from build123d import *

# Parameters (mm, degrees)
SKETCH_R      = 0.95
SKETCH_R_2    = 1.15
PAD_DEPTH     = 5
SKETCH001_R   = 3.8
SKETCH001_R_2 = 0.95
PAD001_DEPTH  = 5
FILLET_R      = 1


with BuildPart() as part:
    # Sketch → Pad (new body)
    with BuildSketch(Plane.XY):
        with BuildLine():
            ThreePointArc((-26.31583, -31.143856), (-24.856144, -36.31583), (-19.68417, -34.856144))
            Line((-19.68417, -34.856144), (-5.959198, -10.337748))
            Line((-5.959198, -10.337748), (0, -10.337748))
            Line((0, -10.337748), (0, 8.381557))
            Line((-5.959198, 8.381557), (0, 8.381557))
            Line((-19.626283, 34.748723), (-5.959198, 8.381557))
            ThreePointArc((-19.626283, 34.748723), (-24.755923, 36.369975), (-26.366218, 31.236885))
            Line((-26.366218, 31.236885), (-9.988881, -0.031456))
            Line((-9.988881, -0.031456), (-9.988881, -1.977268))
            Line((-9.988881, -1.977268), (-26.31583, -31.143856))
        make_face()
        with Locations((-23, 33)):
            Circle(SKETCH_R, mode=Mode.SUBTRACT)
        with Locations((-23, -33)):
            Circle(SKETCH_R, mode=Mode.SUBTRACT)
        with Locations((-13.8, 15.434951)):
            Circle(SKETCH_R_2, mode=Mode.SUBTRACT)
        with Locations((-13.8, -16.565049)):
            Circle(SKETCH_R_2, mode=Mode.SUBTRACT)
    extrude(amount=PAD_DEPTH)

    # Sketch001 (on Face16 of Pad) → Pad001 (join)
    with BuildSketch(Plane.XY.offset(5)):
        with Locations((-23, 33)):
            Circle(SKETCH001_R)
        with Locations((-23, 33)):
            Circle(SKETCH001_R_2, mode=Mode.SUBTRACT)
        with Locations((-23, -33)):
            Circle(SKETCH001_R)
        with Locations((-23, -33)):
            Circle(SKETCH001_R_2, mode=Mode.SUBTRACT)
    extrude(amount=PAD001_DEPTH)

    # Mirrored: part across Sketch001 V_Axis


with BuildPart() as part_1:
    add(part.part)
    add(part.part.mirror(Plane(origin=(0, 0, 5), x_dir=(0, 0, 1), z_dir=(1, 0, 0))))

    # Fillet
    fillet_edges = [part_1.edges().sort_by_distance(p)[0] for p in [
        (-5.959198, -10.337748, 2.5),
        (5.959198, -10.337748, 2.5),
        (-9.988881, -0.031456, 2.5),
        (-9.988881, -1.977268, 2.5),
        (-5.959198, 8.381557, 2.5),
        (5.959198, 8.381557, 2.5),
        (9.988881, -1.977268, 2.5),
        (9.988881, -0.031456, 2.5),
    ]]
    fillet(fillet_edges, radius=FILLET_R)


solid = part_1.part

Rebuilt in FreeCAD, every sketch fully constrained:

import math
import FreeCAD as App
import Part
import Sketcher
from FreeCAD import Vector
Q = App.Units.Quantity


def edges_at(feature, points):
    """Names of the edges that pass closest to the given points."""
    edges = feature.Shape.Edges
    near = lambda p: min(range(len(edges)), key=lambda i: edges[i].distToShape(Part.Vertex(*p))[0])
    return sorted({f"Edge{near(p) + 1}" for p in points})

doc = App.newDocument("Part")
body = doc.addObject("PartDesign::Body", "Body")

sketch1 = body.newObject("Sketcher::SketchObject", "Sketch")
sketch1.AttachmentSupport = (doc.getObject("XY_Plane"), [""])
sketch1.MapMode = "FlatFace"
sketch1.addGeometry(Part.ArcOfCircle(Part.Circle(Vector(-23, -33, 0), Vector(0, 0, 1), 3.8), math.radians(151), math.radians(331)), False)
sketch1.addGeometry(Part.LineSegment(Vector(-19.7, -34.9, 0), Vector(-6, -10.3, 0)), False)
sketch1.addGeometry(Part.LineSegment(Vector(-6, -10.3, 0), Vector(0, -10.3, 0)), False)
sketch1.addGeometry(Part.LineSegment(Vector(0, -10.3, 0), Vector(0, 8.4, 0)), False)
sketch1.addGeometry(Part.LineSegment(Vector(0, 8.4, 0), Vector(-6, 8.4, 0)), False)
sketch1.addGeometry(Part.LineSegment(Vector(-6, 8.4, 0), Vector(-19.6, 34.7, 0)), False)
sketch1.addGeometry(Part.ArcOfCircle(Part.Circle(Vector(-23, 33, 0), Vector(0, 0, 1), 3.8), math.radians(27), math.radians(208)), False)
sketch1.addGeometry(Part.LineSegment(Vector(-26.4, 31.2, 0), Vector(-10, 0, 0)), False)
sketch1.addGeometry(Part.LineSegment(Vector(-10, 0, 0), Vector(-10, -2, 0)), False)
sketch1.addGeometry(Part.LineSegment(Vector(-10, -2, 0), Vector(-26.3, -31.1, 0)), False)
sketch1.addGeometry(Part.Circle(Vector(-23, -33, 0), Vector(0, 0, 1), 0.9), False)
sketch1.addGeometry(Part.Circle(Vector(-13.8, -16.6, 0), Vector(0, 0, 1), 1.1), False)
sketch1.addGeometry(Part.Circle(Vector(-23, 33, 0), Vector(0, 0, 1), 0.9), False)
sketch1.addGeometry(Part.Circle(Vector(-13.8, 15.4, 0), Vector(0, 0, 1), 1.1), False)
sketch1.addConstraint(Sketcher.Constraint("Tangent", 0, 2, 1, 1))
sketch1.addConstraint(Sketcher.Constraint("Coincident", 1, 2, 2, 1))
sketch1.addConstraint(Sketcher.Constraint("Coincident", 2, 2, 3, 1))
sketch1.addConstraint(Sketcher.Constraint("Coincident", 3, 2, 4, 1))
sketch1.addConstraint(Sketcher.Constraint("Coincident", 4, 2, 5, 1))
sketch1.addConstraint(Sketcher.Constraint("Tangent", 5, 2, 6, 1))
sketch1.addConstraint(Sketcher.Constraint("Tangent", 6, 2, 7, 1))
sketch1.addConstraint(Sketcher.Constraint("Coincident", 7, 2, 8, 1))
sketch1.addConstraint(Sketcher.Constraint("Coincident", 8, 2, 9, 1))
sketch1.addConstraint(Sketcher.Constraint("Tangent", 9, 2, 0, 1))
sketch1.addConstraint(Sketcher.Constraint("Horizontal", 2))
sketch1.addConstraint(Sketcher.Constraint("Vertical", 3))
sketch1.addConstraint(Sketcher.Constraint("Horizontal", 4))
sketch1.addConstraint(Sketcher.Constraint("Vertical", 8))
sketch1.addConstraint(Sketcher.Constraint("Coincident", 10, 3, 0, 3))
sketch1.addConstraint(Sketcher.Constraint("Coincident", 12, 3, 6, 3))
sketch1.addConstraint(Sketcher.Constraint("Equal", 0, 6))
sketch1.addConstraint(Sketcher.Constraint("Equal", 10, 12))
sketch1.addConstraint(Sketcher.Constraint("Equal", 11, 13))
sketch1.addConstraint(Sketcher.Constraint("Symmetric", 0, 3, 6, 3, -1))
sketch1.addConstraint(Sketcher.Constraint("PointOnObject", 2, 2, -2))
sketch1.addConstraint(Sketcher.Constraint("Parallel", 1, 9))
sketch1.addConstraint(Sketcher.Constraint("Vertical", 11, 3, 13, 3))
sketch1.addConstraint(Sketcher.Constraint("Vertical", 1, 2, 4, 2))
sketch1.addConstraint(Sketcher.Constraint("Diameter", 10, Q("1.9 mm")))
sketch1.addConstraint(Sketcher.Constraint("Diameter", 11, Q("2.3 mm")))
sketch1.addConstraint(Sketcher.Constraint("Radius", 0, Q("3.8 mm")))
sketch1.addConstraint(Sketcher.Constraint("DistanceX", 0, 3, -1, 1, Q("23 mm")))
sketch1.addConstraint(Sketcher.Constraint("DistanceY", 0, 3, -1, 1, Q("33 mm")))
sketch1.addConstraint(Sketcher.Constraint("DistanceY", 11, 3, 13, 3, Q("32 mm")))
sketch1.addConstraint(Sketcher.Constraint("DistanceX", 11, 3, -1, 1, Q("13.8 mm")))
sketch1.addConstraint(Sketcher.Constraint("DistanceY", 11, 3, 1, 2, Q("6.227301 mm")))
sketch1.addConstraint(Sketcher.Constraint("DistanceX", 0, 3, 1, 2, Q("17.040802 mm")))
sketch1.addConstraint(Sketcher.Constraint("Distance", 7, Q("35.297681 mm")))
sketch1.addConstraint(Sketcher.Constraint("DistanceY", 3, 1, 3, 2, Q("18.719305 mm")))
sketch1.addConstraint(Sketcher.Constraint("DistanceY", 8, 2, 8, 1, Q("1.945812 mm")))
sketch1.addConstraint(Sketcher.Constraint("DistanceY", 11, 3, -1, 1, Q("16.565049 mm")))
pad1 = body.newObject("PartDesign::Pad", "Pad")
pad1.Profile = sketch1
pad1.Length = 5

sketch2 = body.newObject("Sketcher::SketchObject", "Sketch001")
sketch2.AttachmentSupport = (doc.getObject("XY_Plane"), [""])
sketch2.MapMode = "FlatFace"
sketch2.AttachmentOffset = App.Placement(Vector(0, 0, 5), App.Rotation())
sketch2.addGeometry(Part.Circle(Vector(-23, 33, 0), Vector(0, 0, 1), 3.8), False)
sketch2.addGeometry(Part.Circle(Vector(-23, 33, 0), Vector(0, 0, 1), 0.9), False)
sketch2.addGeometry(Part.Circle(Vector(-23, -33, 0), Vector(0, 0, 1), 3.8), False)
sketch2.addGeometry(Part.Circle(Vector(-23, -33, 0), Vector(0, 0, 1), 0.9), False)
sketch2.addConstraint(Sketcher.Constraint("Coincident", 1, 3, 0, 3))
sketch2.addConstraint(Sketcher.Constraint("Coincident", 3, 3, 2, 3))
sketch2.addConstraint(Sketcher.Constraint("Equal", 0, 2))
sketch2.addConstraint(Sketcher.Constraint("Equal", 1, 3))
sketch2.addConstraint(Sketcher.Constraint("Symmetric", 0, 3, 2, 3, -1))
sketch2.addConstraint(Sketcher.Constraint("Diameter", 0, Q("7.6 mm")))
sketch2.addConstraint(Sketcher.Constraint("Diameter", 1, Q("1.9 mm")))
sketch2.addConstraint(Sketcher.Constraint("DistanceX", 0, 3, -1, 1, Q("23 mm")))
sketch2.addConstraint(Sketcher.Constraint("DistanceY", -1, 1, 0, 3, Q("33 mm")))
pad2 = body.newObject("PartDesign::Pad", "Pad001")
pad2.Profile = sketch2
pad2.Length = 5
body2 = doc.addObject("PartDesign::Body", "Body001")
doc.recompute()

body2.BaseFeature = body
doc.recompute()

mirroring = doc.addObject("Part::Mirroring", "Mirroring")
mirroring.Source = body
mirroring.Base = Vector(0, 0, 5)
mirroring.Normal = Vector(1, 0, 0)
body3 = doc.addObject("PartDesign::Body", "Body002")
body3.BaseFeature = mirroring
boolean = body2.newObject("PartDesign::Boolean", "Boolean")
boolean.Type = "Fuse"
boolean.addObjects([body3])
doc.recompute()

fillet = body2.newObject("PartDesign::Fillet", "Fillet")
fillet.Base = (boolean, edges_at(boolean, [
    (-5.959, -10.338, 2.5),
    (5.959, -10.338, 2.5),
    (-9.989, -0.031, 2.5),
    (-9.989, -1.977, 2.5),
    (-5.959, 8.382, 2.5),
    (5.959, 8.382, 2.5),
    (9.989, -1.977, 2.5),
    (9.989, -0.031, 2.5),
]))
fillet.Radius = 1
mirroring.Visibility = False

doc.recompute()
